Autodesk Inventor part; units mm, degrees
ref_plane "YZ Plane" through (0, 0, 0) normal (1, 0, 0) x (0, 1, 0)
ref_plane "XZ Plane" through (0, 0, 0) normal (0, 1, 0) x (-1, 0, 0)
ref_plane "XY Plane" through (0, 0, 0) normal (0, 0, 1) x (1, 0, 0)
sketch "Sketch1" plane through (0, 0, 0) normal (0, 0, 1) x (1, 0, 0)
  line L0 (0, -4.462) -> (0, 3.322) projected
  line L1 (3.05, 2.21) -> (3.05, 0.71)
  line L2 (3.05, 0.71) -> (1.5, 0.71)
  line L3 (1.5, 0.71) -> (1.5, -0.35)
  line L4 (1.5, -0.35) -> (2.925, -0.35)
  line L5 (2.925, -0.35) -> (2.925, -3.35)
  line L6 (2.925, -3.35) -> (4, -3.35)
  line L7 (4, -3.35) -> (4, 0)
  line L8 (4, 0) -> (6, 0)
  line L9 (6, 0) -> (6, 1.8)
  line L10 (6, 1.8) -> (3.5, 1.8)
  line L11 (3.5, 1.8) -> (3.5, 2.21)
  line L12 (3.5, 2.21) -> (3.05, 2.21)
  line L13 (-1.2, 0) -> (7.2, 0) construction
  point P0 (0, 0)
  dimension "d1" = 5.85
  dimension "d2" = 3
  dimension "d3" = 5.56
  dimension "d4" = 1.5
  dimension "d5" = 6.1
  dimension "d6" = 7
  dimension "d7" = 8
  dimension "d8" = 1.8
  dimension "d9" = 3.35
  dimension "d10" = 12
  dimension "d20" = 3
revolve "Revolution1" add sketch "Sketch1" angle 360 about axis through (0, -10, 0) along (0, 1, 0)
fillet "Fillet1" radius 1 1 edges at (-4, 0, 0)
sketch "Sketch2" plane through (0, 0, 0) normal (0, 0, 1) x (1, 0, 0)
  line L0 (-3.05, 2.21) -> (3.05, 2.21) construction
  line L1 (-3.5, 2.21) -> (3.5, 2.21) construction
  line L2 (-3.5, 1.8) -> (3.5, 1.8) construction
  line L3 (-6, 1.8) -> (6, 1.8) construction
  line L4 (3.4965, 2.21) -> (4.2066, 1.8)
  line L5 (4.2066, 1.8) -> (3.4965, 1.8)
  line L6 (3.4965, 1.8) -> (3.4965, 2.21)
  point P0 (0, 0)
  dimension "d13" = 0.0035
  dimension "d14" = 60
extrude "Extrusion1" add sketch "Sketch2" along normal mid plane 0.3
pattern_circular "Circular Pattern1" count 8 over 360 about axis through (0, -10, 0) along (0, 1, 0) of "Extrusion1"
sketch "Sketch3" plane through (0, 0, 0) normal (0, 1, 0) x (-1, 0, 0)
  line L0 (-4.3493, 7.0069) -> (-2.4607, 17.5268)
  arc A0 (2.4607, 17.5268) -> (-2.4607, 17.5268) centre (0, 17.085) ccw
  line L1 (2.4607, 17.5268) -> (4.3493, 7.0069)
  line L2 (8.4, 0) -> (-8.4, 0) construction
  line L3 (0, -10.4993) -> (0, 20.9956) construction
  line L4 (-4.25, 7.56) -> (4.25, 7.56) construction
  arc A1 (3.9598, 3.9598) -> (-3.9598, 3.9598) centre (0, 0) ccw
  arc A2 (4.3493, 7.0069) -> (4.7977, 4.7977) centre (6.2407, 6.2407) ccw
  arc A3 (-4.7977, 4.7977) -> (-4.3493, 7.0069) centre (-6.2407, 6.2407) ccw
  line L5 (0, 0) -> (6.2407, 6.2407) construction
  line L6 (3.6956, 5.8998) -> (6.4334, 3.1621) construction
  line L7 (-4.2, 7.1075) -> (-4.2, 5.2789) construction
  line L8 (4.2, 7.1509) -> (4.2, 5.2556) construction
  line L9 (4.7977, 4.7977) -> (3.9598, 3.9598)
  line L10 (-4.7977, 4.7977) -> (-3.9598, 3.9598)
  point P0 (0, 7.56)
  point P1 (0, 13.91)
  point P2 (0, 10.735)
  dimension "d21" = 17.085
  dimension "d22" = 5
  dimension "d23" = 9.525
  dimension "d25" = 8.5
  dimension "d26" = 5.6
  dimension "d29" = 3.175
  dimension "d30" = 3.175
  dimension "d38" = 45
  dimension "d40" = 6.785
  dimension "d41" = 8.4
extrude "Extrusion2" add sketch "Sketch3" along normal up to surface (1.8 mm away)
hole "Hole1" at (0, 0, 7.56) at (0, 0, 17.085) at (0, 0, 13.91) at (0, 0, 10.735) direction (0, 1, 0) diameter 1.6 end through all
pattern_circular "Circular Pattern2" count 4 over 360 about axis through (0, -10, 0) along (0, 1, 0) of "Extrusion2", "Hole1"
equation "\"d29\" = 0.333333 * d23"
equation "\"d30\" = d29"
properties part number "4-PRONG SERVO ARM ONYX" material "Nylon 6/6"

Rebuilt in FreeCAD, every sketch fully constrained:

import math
import FreeCAD as App
import Part
import Sketcher
Q = App.Units.Quantity


def edges_at(feature, points):
    """Names of the edges that pass closest to the given points."""
    edges = feature.Shape.Edges
    near = lambda p: min(range(len(edges)), key=lambda i: edges[i].distToShape(Part.Vertex(*p))[0])
    return sorted({f"Edge{near(p) + 1}" for p in points})

doc = App.newDocument("Part")
body = doc.addObject("PartDesign::Body", "Body")

# Sketch on XY plane
sketch1 = doc.addObject("Sketcher::SketchObject", "Sketch")
body.addObject(sketch1)
sketch1.AttachmentSupport = (doc.XY_Plane, [""])
sketch1.MapMode = "FlatFace"
sketch1.addGeometry([
    Part.LineSegment(App.Vector(3.5, 2.21, 0), App.Vector(3.05, 2.21, 0)),  # 0
    Part.LineSegment(App.Vector(3.05, 2.21, 0), App.Vector(3.05, 0.71, 0)),  # 1
    Part.LineSegment(App.Vector(3.05, 0.71, 0), App.Vector(1.5, 0.71, 0)),  # 2
    Part.LineSegment(App.Vector(1.5, 0.71, 0), App.Vector(1.5, -0.35, 0)),  # 3
    Part.LineSegment(App.Vector(1.5, -0.35, 0), App.Vector(2.925, -0.35, 0)),  # 4
    Part.LineSegment(App.Vector(2.925, -0.35, 0), App.Vector(2.925, -3.35, 0)),  # 5
    Part.LineSegment(App.Vector(2.925, -3.35, 0), App.Vector(4, -3.35, 0)),  # 6
    Part.LineSegment(App.Vector(4, -3.35, 0), App.Vector(4, 0, 0)),  # 7
    Part.LineSegment(App.Vector(4, 0, 0), App.Vector(6, 0, 0)),  # 8
    Part.LineSegment(App.Vector(6, 0, 0), App.Vector(6, 1.8, 0)),  # 9
    Part.LineSegment(App.Vector(6, 1.8, 0), App.Vector(3.5, 1.8, 0)),  # 10
    Part.LineSegment(App.Vector(3.5, 1.8, 0), App.Vector(3.5, 2.21, 0)),  # 11
], False)
sketch1.addConstraint([
    Sketcher.Constraint("Coincident", 0, 2, 1, 1),
    Sketcher.Constraint("Coincident", 1, 2, 2, 1),
    Sketcher.Constraint("Coincident", 2, 2, 3, 1),
    Sketcher.Constraint("Coincident", 3, 2, 4, 1),
    Sketcher.Constraint("Coincident", 4, 2, 5, 1),
    Sketcher.Constraint("Coincident", 5, 2, 6, 1),
    Sketcher.Constraint("Coincident", 6, 2, 7, 1),
    Sketcher.Constraint("Coincident", 7, 2, 8, 1),
    Sketcher.Constraint("Coincident", 8, 2, 9, 1),
    Sketcher.Constraint("Coincident", 9, 2, 10, 1),
    Sketcher.Constraint("Coincident", 10, 2, 11, 1),
    Sketcher.Constraint("Coincident", 11, 2, 0, 1),
    Sketcher.Constraint("Horizontal", 0),
    Sketcher.Constraint("Vertical", 1),
    Sketcher.Constraint("Horizontal", 2),
    Sketcher.Constraint("Vertical", 3),
    Sketcher.Constraint("Horizontal", 4),
    Sketcher.Constraint("Vertical", 5),
    Sketcher.Constraint("Horizontal", 6),
    Sketcher.Constraint("Vertical", 7),
    Sketcher.Constraint("Horizontal", 8),
    Sketcher.Constraint("Vertical", 9),
    Sketcher.Constraint("Horizontal", 10),
    Sketcher.Constraint("Vertical", 11),
    Sketcher.Constraint("PointOnObject", 7, 2, -1),
    Sketcher.Constraint("DistanceY", 5, 2, 5, 1, Q("3 mm")),
    Sketcher.Constraint("DistanceY", 1, 2, 1, 1, Q("1.5 mm")),
    Sketcher.Constraint("DistanceY", 9, 1, 9, 2, Q("1.8 mm")),
    Sketcher.Constraint("DistanceY", 7, 1, 7, 2, Q("3.35 mm")),
    Sketcher.Constraint("DistanceX", -1, 1, 2, 2, Q("1.5 mm")),
    Sketcher.Constraint("DistanceX", 8, 1, 8, 2, Q("2 mm")),
    Sketcher.Constraint("DistanceY", 5, 2, 0, 2, Q("5.56 mm")),
    Sketcher.Constraint("DistanceX", 10, 2, 10, 1, Q("2.5 mm")),
    Sketcher.Constraint("DistanceX", -1, 1, 6, 2, Q("4 mm")),
    Sketcher.Constraint("DistanceX", 0, 2, 0, 1, Q("0.45 mm")),
    Sketcher.Constraint("DistanceX", 4, 1, 4, 2, Q("1.425 mm")),
])
revolution = doc.addObject("PartDesign::Revolution", "Revolution")
body.addObject(revolution)
revolution.Profile = sketch1
revolution.ReferenceAxis = (sketch1, ["V_Axis"])
revolution.Angle = 360
doc.recompute()

fillet = doc.addObject("PartDesign::Fillet", "Fillet")
body.addObject(fillet)
fillet.Base = (revolution, edges_at(revolution, [(-4, 0, 0)]))
fillet.Radius = 1

# Sketch on XY plane
sketch2 = doc.addObject("Sketcher::SketchObject", "Sketch001")
body.addObject(sketch2)
sketch2.AttachmentSupport = (doc.XY_Plane, [""])
sketch2.MapMode = "FlatFace"
sketch2.addGeometry([
    Part.LineSegment(App.Vector(4.2066, 1.8, 0), App.Vector(3.4965, 2.21, 0)),
    Part.LineSegment(App.Vector(3.4965, 2.21, 0), App.Vector(3.4965, 1.8, 0)),
    Part.LineSegment(App.Vector(3.4965, 1.8, 0), App.Vector(4.2066, 1.8, 0)),
], False)
sketch2.addConstraint([
    Sketcher.Constraint("Coincident", 0, 2, 1, 1),
    Sketcher.Constraint("Coincident", 1, 2, 2, 1),
    Sketcher.Constraint("Coincident", 2, 2, 0, 1),
    Sketcher.Constraint("Vertical", 1),
    Sketcher.Constraint("Horizontal", 2),
    Sketcher.Constraint("DistanceX", 2, 1, 2, 2, Q("0.71 mm")),
    Sketcher.Constraint("DistanceY", 1, 2, 1, 1, Q("0.41 mm")),
    Sketcher.Constraint("DistanceY", -1, 1, 1, 2, Q("1.8 mm")),
    Sketcher.Constraint("DistanceX", -1, 1, 0, 2, Q("3.4965 mm")),
])
pad1 = doc.addObject("PartDesign::Pad", "Pad")
body.addObject(pad1)
pad1.Profile = sketch2
pad1.Length = 0.3
pad1.Midplane = True
doc.recompute()

polarpattern = doc.addObject("PartDesign::PolarPattern", "PolarPattern")
body.addObject(polarpattern)
polarpattern.Originals = [pad1]
polarpattern.Axis = (doc.Y_Axis, [""])
polarpattern.Angle = 360
polarpattern.Occurrences = 8
body.Tip = polarpattern

# Sketch on XZ plane
sketch3 = doc.addObject("Sketcher::SketchObject", "Sketch002")
body.addObject(sketch3)
sketch3.AttachmentSupport = (doc.XZ_Plane, [""])
sketch3.MapMode = "FlatFace"
sketch3.addGeometry([
    Part.LineSegment(App.Vector(2.4607, 17.5268, 0), App.Vector(4.3493, 7.0069, 0)),  # 0
    Part.ArcOfCircle(Part.Circle(App.Vector(6.2407, 6.2407, 0), App.Vector(0, 0, 1), 2.04071), math.radians(157.94729), math.radians(225)),  # 1
    Part.LineSegment(App.Vector(4.7977, 4.7977, 0), App.Vector(3.9598, 3.9598, 0)),  # 2
    Part.ArcOfCircle(Part.Circle(App.Vector(0, 0, 0), App.Vector(0, 0, 1), 5.600003), math.radians(45), math.radians(135)),  # 3
    Part.LineSegment(App.Vector(-3.9598, 3.9598, 0), App.Vector(-4.7977, 4.7977, 0)),  # 4
    Part.ArcOfCircle(Part.Circle(App.Vector(-6.2407, 6.2407, 0), App.Vector(0, 0, 1), 2.0407), math.radians(-45), math.radians(22.05271)),  # 5
    Part.LineSegment(App.Vector(-4.3493, 7.0069, 0), App.Vector(-2.4607, 17.5268, 0)),  # 6
    Part.ArcOfCircle(Part.Circle(App.Vector(0, 17.085, 0), App.Vector(0, 0, 1), 2.500046), math.radians(10.178576), math.radians(169.821424)),  # 7
], False)
sketch3.addConstraint([
    Sketcher.Constraint("Coincident", 0, 2, 1, 1),
    Sketcher.Constraint("Coincident", 1, 2, 2, 1),
    Sketcher.Constraint("Coincident", 2, 2, 3, 1),
    Sketcher.Constraint("Coincident", 3, 2, 4, 1),
    Sketcher.Constraint("Coincident", 4, 2, 5, 1),
    Sketcher.Constraint("Coincident", 5, 2, 6, 1),
    Sketcher.Constraint("Tangent", 6, 2, 7, 2),
    Sketcher.Constraint("Tangent", 7, 1, 0, 1),
    Sketcher.Constraint("Coincident", 3, 3, -1, 1),
    Sketcher.Constraint("Equal", 1, 5),
    Sketcher.Constraint("Symmetric", 1, 3, 5, 3, -2),
    Sketcher.Constraint("Symmetric", 6, 2, 7, 1, -2),
    Sketcher.Constraint("Perpendicular", 2, 4),
    Sketcher.Constraint("Horizontal", 2, 2, 3, 2),
    Sketcher.Constraint("Horizontal", 1, 2, 4, 2),
    Sketcher.Constraint("Radius", 3, Q("5.6 mm")),
    Sketcher.Constraint("Radius", 7, Q("2.5 mm")),
    Sketcher.Constraint("DistanceY", -1, 1, 7, 3, Q("17.085 mm")),
    Sketcher.Constraint("Radius", 1, Q("2.0407 mm")),
    Sketcher.Constraint("DistanceX", 5, 3, 0, 2, Q("10.59 mm")),
    Sketcher.Constraint("DistanceY", 5, 2, 6, 2, Q("10.52 mm")),
    Sketcher.Constraint("DistanceX", 5, 3, 6, 2, Q("3.78 mm")),
    Sketcher.Constraint("DistanceX", 1, 2, 1, 3, Q("1.443 mm")),
])
pad2 = doc.addObject("PartDesign::Pad", "Pad001")
body.addObject(pad2)
pad2.Profile = sketch3
pad2.Length = 1.8
pad2.Reversed = True

# Sketch on XZ plane
sketch4 = doc.addObject("Sketcher::SketchObject", "Sketch003")
body.addObject(sketch4)
sketch4.AttachmentSupport = (doc.XZ_Plane, [""])
sketch4.MapMode = "FlatFace"
sketch4.addGeometry([
    Part.Circle(App.Vector(0, 7.56, 0), App.Vector(0, 0, 1), 0.8),
    Part.Circle(App.Vector(0, 17.085, 0), App.Vector(0, 0, 1), 0.8),
    Part.Circle(App.Vector(0, 13.91, 0), App.Vector(0, 0, 1), 0.8),
    Part.Circle(App.Vector(0, 10.735, 0), App.Vector(0, 0, 1), 0.8),
], False)
sketch4.addConstraint([
    Sketcher.Constraint("Equal", 0, 1),
    Sketcher.Constraint("Equal", 1, 2),
    Sketcher.Constraint("Equal", 2, 3),
    Sketcher.Constraint("PointOnObject", 0, 3, -2),
    Sketcher.Constraint("PointOnObject", 1, 3, -2),
    Sketcher.Constraint("PointOnObject", 2, 3, -2),
    Sketcher.Constraint("PointOnObject", 3, 3, -2),
    Sketcher.Constraint("Diameter", 0, Q("1.6 mm")),
    Sketcher.Constraint("DistanceY", -1, 1, 0, 3, Q("7.56 mm")),
    Sketcher.Constraint("DistanceY", -1, 1, 2, 3, Q("13.91 mm")),
    Sketcher.Constraint("DistanceY", 3, 3, 1, 3, Q("6.35 mm")),
    Sketcher.Constraint("DistanceY", -1, 1, 1, 3, Q("17.085 mm")),
])
doc.recompute()
hole = doc.addObject("PartDesign::Hole", "Hole")
body.addObject(hole)
hole.Profile = sketch4
hole.ThreadType = "None"
hole.Diameter = 1.6
hole.DepthType = "ThroughAll"
doc.recompute()

polarpattern2 = doc.addObject("PartDesign::PolarPattern", "PolarPattern001")
body.addObject(polarpattern2)
polarpattern2.Originals = [pad2, hole]
polarpattern2.Axis = (doc.Y_Axis, [""])
polarpattern2.Angle = 360
polarpattern2.Occurrences = 4
body.Tip = polarpattern2

doc.recompute()
